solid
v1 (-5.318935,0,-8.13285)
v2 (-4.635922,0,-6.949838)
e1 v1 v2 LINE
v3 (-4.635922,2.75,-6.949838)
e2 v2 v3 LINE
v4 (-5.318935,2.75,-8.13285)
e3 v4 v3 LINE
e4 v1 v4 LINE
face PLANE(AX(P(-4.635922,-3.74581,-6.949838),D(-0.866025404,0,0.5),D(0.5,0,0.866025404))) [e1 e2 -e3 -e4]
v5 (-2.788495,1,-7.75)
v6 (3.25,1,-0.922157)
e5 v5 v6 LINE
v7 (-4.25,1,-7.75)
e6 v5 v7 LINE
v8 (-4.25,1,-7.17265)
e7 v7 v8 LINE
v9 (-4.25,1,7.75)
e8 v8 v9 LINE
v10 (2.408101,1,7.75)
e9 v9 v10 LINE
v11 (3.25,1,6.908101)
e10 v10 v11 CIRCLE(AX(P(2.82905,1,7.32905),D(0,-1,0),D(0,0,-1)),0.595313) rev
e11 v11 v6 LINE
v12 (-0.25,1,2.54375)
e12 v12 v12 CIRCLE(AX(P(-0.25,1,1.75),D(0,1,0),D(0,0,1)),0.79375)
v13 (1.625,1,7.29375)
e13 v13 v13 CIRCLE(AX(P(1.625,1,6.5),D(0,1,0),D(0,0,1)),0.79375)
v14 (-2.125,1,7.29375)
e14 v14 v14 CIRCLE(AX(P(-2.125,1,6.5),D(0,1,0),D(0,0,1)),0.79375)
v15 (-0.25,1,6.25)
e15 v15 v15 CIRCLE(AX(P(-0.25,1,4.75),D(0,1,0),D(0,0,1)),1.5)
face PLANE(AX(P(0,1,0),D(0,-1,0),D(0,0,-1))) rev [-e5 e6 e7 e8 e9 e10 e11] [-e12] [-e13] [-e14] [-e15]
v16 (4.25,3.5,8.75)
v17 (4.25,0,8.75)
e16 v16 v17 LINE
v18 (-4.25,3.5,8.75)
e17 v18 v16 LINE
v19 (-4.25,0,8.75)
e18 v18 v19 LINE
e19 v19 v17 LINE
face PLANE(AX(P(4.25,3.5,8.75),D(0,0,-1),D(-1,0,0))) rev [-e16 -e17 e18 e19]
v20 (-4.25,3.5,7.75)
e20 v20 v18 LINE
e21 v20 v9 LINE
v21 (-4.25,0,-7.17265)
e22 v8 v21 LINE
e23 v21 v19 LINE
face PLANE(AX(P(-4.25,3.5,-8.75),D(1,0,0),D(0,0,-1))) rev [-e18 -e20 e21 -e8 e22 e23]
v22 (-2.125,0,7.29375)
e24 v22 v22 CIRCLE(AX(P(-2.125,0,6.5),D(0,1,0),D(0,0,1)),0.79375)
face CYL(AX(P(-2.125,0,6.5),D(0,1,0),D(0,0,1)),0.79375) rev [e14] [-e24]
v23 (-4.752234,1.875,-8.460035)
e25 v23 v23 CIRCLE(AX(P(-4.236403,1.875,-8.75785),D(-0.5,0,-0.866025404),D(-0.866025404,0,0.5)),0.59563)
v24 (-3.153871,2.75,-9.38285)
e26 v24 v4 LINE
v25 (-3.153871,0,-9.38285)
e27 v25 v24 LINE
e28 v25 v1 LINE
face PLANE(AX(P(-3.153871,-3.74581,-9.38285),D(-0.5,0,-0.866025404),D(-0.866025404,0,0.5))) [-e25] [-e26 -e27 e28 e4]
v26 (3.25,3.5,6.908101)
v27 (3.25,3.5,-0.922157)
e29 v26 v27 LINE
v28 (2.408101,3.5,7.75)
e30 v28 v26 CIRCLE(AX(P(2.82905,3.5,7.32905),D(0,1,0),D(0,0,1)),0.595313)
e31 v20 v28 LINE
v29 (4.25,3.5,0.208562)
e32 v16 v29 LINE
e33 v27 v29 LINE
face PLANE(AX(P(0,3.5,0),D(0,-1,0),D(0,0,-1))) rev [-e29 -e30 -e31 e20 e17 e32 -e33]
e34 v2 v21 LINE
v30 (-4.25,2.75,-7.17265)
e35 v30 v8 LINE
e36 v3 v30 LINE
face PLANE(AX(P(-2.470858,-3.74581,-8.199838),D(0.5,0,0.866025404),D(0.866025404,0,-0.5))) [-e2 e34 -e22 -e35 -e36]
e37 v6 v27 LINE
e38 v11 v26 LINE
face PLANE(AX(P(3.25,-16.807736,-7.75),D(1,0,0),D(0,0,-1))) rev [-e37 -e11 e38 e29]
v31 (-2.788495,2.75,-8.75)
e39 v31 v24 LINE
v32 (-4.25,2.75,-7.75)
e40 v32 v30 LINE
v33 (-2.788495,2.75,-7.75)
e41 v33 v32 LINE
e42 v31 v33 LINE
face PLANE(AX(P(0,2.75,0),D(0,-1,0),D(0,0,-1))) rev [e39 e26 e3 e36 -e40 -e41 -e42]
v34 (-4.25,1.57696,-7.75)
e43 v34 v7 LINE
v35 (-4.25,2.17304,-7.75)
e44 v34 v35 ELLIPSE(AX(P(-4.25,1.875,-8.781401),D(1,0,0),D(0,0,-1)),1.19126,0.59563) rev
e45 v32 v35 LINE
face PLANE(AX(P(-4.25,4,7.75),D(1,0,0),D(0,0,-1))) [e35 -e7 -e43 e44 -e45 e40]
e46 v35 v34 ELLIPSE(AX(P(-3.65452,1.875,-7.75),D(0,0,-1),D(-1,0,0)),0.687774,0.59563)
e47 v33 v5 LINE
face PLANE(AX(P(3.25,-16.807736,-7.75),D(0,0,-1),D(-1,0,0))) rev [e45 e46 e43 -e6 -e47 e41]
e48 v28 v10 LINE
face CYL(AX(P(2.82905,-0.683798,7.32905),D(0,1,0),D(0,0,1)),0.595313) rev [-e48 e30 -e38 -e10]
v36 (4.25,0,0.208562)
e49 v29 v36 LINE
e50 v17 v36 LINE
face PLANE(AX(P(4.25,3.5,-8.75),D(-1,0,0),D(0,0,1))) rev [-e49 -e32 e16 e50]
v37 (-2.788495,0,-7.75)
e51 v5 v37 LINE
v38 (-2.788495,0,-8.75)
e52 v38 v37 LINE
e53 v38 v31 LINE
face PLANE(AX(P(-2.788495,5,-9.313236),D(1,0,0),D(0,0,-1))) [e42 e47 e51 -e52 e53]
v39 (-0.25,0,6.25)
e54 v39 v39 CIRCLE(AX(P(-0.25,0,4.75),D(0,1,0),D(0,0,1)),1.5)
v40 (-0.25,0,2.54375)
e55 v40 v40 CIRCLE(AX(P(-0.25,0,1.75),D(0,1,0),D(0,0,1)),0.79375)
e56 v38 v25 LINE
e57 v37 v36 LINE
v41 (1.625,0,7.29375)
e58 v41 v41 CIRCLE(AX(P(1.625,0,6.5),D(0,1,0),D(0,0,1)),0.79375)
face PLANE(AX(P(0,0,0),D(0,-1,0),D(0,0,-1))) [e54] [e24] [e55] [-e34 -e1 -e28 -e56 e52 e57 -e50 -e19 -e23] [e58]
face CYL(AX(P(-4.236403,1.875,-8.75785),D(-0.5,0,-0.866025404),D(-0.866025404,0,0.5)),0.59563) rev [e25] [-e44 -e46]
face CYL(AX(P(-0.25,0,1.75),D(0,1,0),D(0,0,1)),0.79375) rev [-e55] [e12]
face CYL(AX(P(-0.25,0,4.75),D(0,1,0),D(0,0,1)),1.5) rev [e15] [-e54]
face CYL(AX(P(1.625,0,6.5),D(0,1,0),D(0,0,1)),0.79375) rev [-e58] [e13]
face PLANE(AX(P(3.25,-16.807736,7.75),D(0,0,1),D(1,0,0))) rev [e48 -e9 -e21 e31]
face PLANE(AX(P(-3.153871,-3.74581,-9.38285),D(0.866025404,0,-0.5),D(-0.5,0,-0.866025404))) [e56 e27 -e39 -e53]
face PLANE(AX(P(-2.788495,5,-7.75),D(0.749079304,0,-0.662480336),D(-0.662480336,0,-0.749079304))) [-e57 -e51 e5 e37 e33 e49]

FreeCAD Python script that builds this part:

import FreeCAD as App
import Part
import Sketcher
Q = App.Units.Quantity

doc = App.newDocument("Part")
body = doc.addObject("PartDesign::Body", "Body")

# Sketch on XZ plane
sketch1 = body.newObject("Sketcher::SketchObject", "Sketch")
sketch1.AttachmentSupport = (doc.getObject("XZ_Plane"), [""])
sketch1.MapMode = "FlatFace"
sketch1.addGeometry([
    Part.LineSegment(App.Vector(-4, -9, 0), App.Vector(-4, 9, 0)),
    Part.LineSegment(App.Vector(-4, 9, 0), App.Vector(4, 9, 0)),
    Part.LineSegment(App.Vector(4, 9, 0), App.Vector(4, -9, 0)),
    Part.LineSegment(App.Vector(4, -9, 0), App.Vector(-4, -9, 0)),
], False)
sketch1.addConstraint([
    Sketcher.Constraint("Coincident", 0, 2, 1, 1),
    Sketcher.Constraint("Coincident", 1, 2, 2, 1),
    Sketcher.Constraint("Coincident", 2, 2, 3, 1),
    Sketcher.Constraint("Coincident", 3, 2, 0, 1),
    Sketcher.Constraint("Vertical", 0),
    Sketcher.Constraint("Horizontal", 1),
    Sketcher.Constraint("Vertical", 2),
    Sketcher.Constraint("Horizontal", 3),
    Sketcher.Constraint("Symmetric", 0, 2, 2, 2, -1, 1),
    Sketcher.Constraint("DistanceX", 1, 1, 1, 2, 8.5),
    Sketcher.Constraint("DistanceY", 0, 1, 0, 2, 17.5),
])
pad1 = body.newObject("PartDesign::Pad", "Pad")
pad1.Profile = sketch1
pad1.Length = 3.5
pad1.Reversed = True

# Sketch on XZ plane
sketch2 = body.newObject("Sketcher::SketchObject", "Sketch001")
sketch2.AttachmentSupport = (doc.getObject("XZ_Plane"), [""])
sketch2.MapMode = "FlatFace"
sketch2.AttachmentOffset = App.Placement(App.Vector(0, 0, -3.5), App.Rotation())
sketch2.addGeometry([
    Part.LineSegment(App.Vector(-3, -8, 0), App.Vector(-3, 8, 0)),
    Part.LineSegment(App.Vector(-3, 8, 0), App.Vector(3, 8, 0)),
    Part.LineSegment(App.Vector(3, 8, 0), App.Vector(3, -8, 0)),
    Part.LineSegment(App.Vector(3, -8, 0), App.Vector(-3, -8, 0)),
], False)
sketch2.addConstraint([
    Sketcher.Constraint("Coincident", 0, 2, 1, 1),
    Sketcher.Constraint("Coincident", 1, 2, 2, 1),
    Sketcher.Constraint("Coincident", 2, 2, 3, 1),
    Sketcher.Constraint("Coincident", 3, 2, 0, 1),
    Sketcher.Constraint("Vertical", 0),
    Sketcher.Constraint("Horizontal", 1),
    Sketcher.Constraint("Vertical", 2),
    Sketcher.Constraint("Horizontal", 3),
    Sketcher.Constraint("Symmetric", 0, 2, 2, 2, -1, 1),
    Sketcher.Constraint("DistanceX", 1, 1, 1, 2, 6.5),
    Sketcher.Constraint("DistanceY", 0, 1, 0, 2, 15.5),
])
pocket1 = body.newObject("PartDesign::Pocket", "Pocket")
pocket1.Profile = sketch2
pocket1.Length = 2.5
pocket1.Reversed = True

# Sketch on XZ plane
sketch3 = body.newObject("Sketcher::SketchObject", "Sketch002")
sketch3.AttachmentSupport = (doc.getObject("XZ_Plane"), [""])
sketch3.MapMode = "FlatFace"
sketch3.AttachmentOffset = App.Placement(App.Vector(0, 0, -1), App.Rotation())
sketch3.addGeometry(Part.Circle(App.Vector(-0.2, 4.8, 0), App.Vector(0, 0, 1), 1.5), False)
sketch3.addConstraint([
    Sketcher.Constraint("Diameter", 0, 3.0),
    Sketcher.Constraint("DistanceX", 0, 3, -1, 1, 0.25),
    Sketcher.Constraint("DistanceY", -1, 1, 0, 3, 4.75),
])
pocket2 = body.newObject("PartDesign::Pocket", "Pocket001")
pocket2.Profile = sketch3
pocket2.Type = "ThroughAll"
pocket2.Reversed = True

# Sketch on XZ plane
sketch4 = body.newObject("Sketcher::SketchObject", "Sketch003")
sketch4.AttachmentSupport = (doc.getObject("XZ_Plane"), [""])
sketch4.MapMode = "FlatFace"
sketch4.AttachmentOffset = App.Placement(App.Vector(0, 0, -3.5), App.Rotation())
sketch4.addGeometry(Part.Circle(App.Vector(2.8, 7.3, 0), App.Vector(0, 0, 1), 0.6), False)
sketch4.addConstraint([
    Sketcher.Constraint("Diameter", 0, 1.190625),
    Sketcher.Constraint("DistanceX", -1, 1, 0, 3, 2.82905),
    Sketcher.Constraint("DistanceY", -1, 1, 0, 3, 7.32905),
])
pocket3 = body.newObject("PartDesign::Pocket", "Pocket002")
pocket3.Profile = sketch4
pocket3.Length = 2.5
pocket3.Reversed = True

# Sketch on XZ plane
sketch5 = body.newObject("Sketcher::SketchObject", "Sketch004")
sketch5.AttachmentSupport = (doc.getObject("XZ_Plane"), [""])
sketch5.MapMode = "FlatFace"
sketch5.AttachmentOffset = App.Placement(App.Vector(0, 0, -1), App.Rotation())
sketch5.addGeometry([
    Part.Circle(App.Vector(-0.2, 1.8, 0), App.Vector(0, 0, 1), 0.8),
    Part.Circle(App.Vector(-2.1, 6.5, 0), App.Vector(0, 0, 1), 0.8),
    Part.Circle(App.Vector(1.6, 6.5, 0), App.Vector(0, 0, 1), 0.8),
], False)
sketch5.addConstraint([
    Sketcher.Constraint("Equal", 0, 1),
    Sketcher.Constraint("Equal", 1, 2),
    Sketcher.Constraint("Horizontal", 1, 3, 2, 3),
    Sketcher.Constraint("Diameter", 0, 1.5875),
    Sketcher.Constraint("DistanceY", -1, 1, 1, 3, 6.5),
    Sketcher.Constraint("DistanceX", 0, 3, -1, 1, 0.25),
    Sketcher.Constraint("DistanceY", -1, 1, 0, 3, 1.75),
    Sketcher.Constraint("DistanceX", 1, 3, 2, 3, 3.75),
    Sketcher.Constraint("DistanceX", 1, 3, -1, 1, 2.125),
])
pocket4 = body.newObject("PartDesign::Pocket", "Pocket003")
pocket4.Profile = sketch5
pocket4.Type = "ThroughAll"
pocket4.Reversed = True

# Sketch on XZ plane
sketch6 = body.newObject("Sketcher::SketchObject", "Sketch005")
sketch6.AttachmentSupport = (doc.getObject("XZ_Plane"), [""])
sketch6.MapMode = "FlatFace"
sketch6.AttachmentOffset = App.Placement(App.Vector(0, 0, -3.5), App.Rotation())
sketch6.addGeometry([
    Part.LineSegment(App.Vector(-3.2, -9.4, 0), App.Vector(-5.3, -8.1, 0)),  # 0
    Part.LineSegment(App.Vector(-5.3, -8.1, 0), App.Vector(-4.6, -6.9, 0)),  # 1
    Part.LineSegment(App.Vector(-4.6, -6.9, 0), App.Vector(-4, -7.3, 0)),  # 2
    Part.LineSegment(App.Vector(-4, -7.3, 0), App.Vector(-3.1, -7.8, 0)),  # 3
    Part.LineSegment(App.Vector(-3.1, -7.8, 0), App.Vector(-2.5, -8.2, 0)),  # 4
    Part.LineSegment(App.Vector(-2.5, -8.2, 0), App.Vector(-3.2, -9.4, 0)),  # 5
], False)
sketch6.addConstraint([
    Sketcher.Constraint("Coincident", 0, 2, 1, 1),
    Sketcher.Constraint("Coincident", 1, 2, 2, 1),
    Sketcher.Constraint("Coincident", 2, 2, 3, 1),
    Sketcher.Constraint("Coincident", 3, 2, 4, 1),
    Sketcher.Constraint("Coincident", 4, 2, 5, 1),
    Sketcher.Constraint("Coincident", 5, 2, 0, 1),
    Sketcher.Constraint("Perpendicular", 0, 1),
    Sketcher.Constraint("Perpendicular", 1, 2),
    Sketcher.Constraint("Parallel", 2, 3),
    Sketcher.Constraint("Parallel", 3, 4),
    Sketcher.Constraint("Perpendicular", 4, 5),
    Sketcher.Constraint("Equal", 2, 4),
    Sketcher.Constraint("Angle", 0, Q("150 deg")),
    Sketcher.Constraint("Distance", 0, 2.5),
    Sketcher.Constraint("Distance", 2, 0.70898),
    Sketcher.Constraint("DistanceY", 0, 2, -1, 1, 8.13285),
    Sketcher.Constraint("DistanceX", 1, 2, -1, 1, 4.635922),
    Sketcher.Constraint("DistanceX", 5, 2, -1, 1, 3.153871),
])
pad2 = body.newObject("PartDesign::Pad", "Pad001")
pad2.Profile = sketch6
pad2.Length = 3.5

# Sketch on XZ plane
sketch7 = body.newObject("Sketcher::SketchObject", "Sketch006")
sketch7.AttachmentSupport = (doc.getObject("XZ_Plane"), [""])
sketch7.MapMode = "FlatFace"
sketch7.AttachmentOffset = App.Placement(App.Vector(0, 0, -3.5), App.Rotation())
sketch7.addGeometry([
    Part.LineSegment(App.Vector(-6, -10, 0), App.Vector(-6, -5, 0)),
    Part.LineSegment(App.Vector(-6, -5, 0), App.Vector(0, -5, 0)),
    Part.LineSegment(App.Vector(0, -5, 0), App.Vector(0, -10, 0)),
    Part.LineSegment(App.Vector(0, -10, 0), App.Vector(-6, -10, 0)),
], False)
sketch7.addConstraint([
    Sketcher.Constraint("Coincident", 0, 2, 1, 1),
    Sketcher.Constraint("Coincident", 1, 2, 2, 1),
    Sketcher.Constraint("Coincident", 2, 2, 3, 1),
    Sketcher.Constraint("Coincident", 3, 2, 0, 1),
    Sketcher.Constraint("Vertical", 0),
    Sketcher.Constraint("Horizontal", 1),
    Sketcher.Constraint("Vertical", 2),
    Sketcher.Constraint("Horizontal", 3),
    Sketcher.Constraint("DistanceX", 1, 1, 1, 2, 5.965259),
    Sketcher.Constraint("DistanceY", 0, 1, 0, 2, 5.13296),
    Sketcher.Constraint("DistanceX", 0, 2, -1, 1, 6.232629),
    Sketcher.Constraint("DistanceY", 0, 2, -1, 1, 5.18352),
])
pocket5 = body.newObject("PartDesign::Pocket", "Pocket004")
pocket5.Profile = sketch7
pocket5.Length = 0.75
pocket5.Reversed = True

# Sketch on an angled plane
sketch8 = body.newObject("Sketcher::SketchObject", "Sketch007")
sketch8.Placement = App.Placement(App.Vector(-4.851361, 0, -8.402804), App.Rotation(App.Vector(-0.866025404, 0, 0.5), App.Vector(0, 1, 0), App.Vector(-0.5, 0, -0.866025404), "ZXY"))
sketch8.addGeometry(Part.Circle(App.Vector(-0.7, 1.9, 0), App.Vector(0, 0, 1), 0.6), False)
sketch8.addConstraint([
    Sketcher.Constraint("Diameter", 0, 1.19126),
    Sketcher.Constraint("DistanceY", -1, 1, 0, 3, 1.875),
    Sketcher.Constraint("DistanceX", 0, 3, -1, 1, 0.710093),
])
doc.recompute()
hole = body.newObject("PartDesign::Hole", "Hole")
hole.Profile = sketch8
hole.ThreadType = "None"
hole.Diameter = 1.19126
hole.DepthType = "Dimension"
hole.Depth = 7.11
hole.DrillPoint = "Angled"
hole.DrillPointAngle = 118

# Sketch on XZ plane
sketch9 = body.newObject("Sketcher::SketchObject", "Sketch008")
sketch9.AttachmentSupport = (doc.getObject("XZ_Plane"), [""])
sketch9.MapMode = "FlatFace"
sketch9.addGeometry([
    Part.LineSegment(App.Vector(-2.8, -9.3, 0), App.Vector(-2.8, -7.8, 0)),
    Part.LineSegment(App.Vector(-2.8, -7.8, 0), App.Vector(4.2, 0.2, 0)),
    Part.LineSegment(App.Vector(4.2, 0.2, 0), App.Vector(4.2, -9.3, 0)),
    Part.LineSegment(App.Vector(4.2, -9.3, 0), App.Vector(-2.8, -9.3, 0)),
], False)
sketch9.addConstraint([
    Sketcher.Constraint("Coincident", 0, 2, 1, 1),
    Sketcher.Constraint("Coincident", 1, 2, 2, 1),
    Sketcher.Constraint("Coincident", 2, 2, 3, 1),
    Sketcher.Constraint("Coincident", 3, 2, 0, 1),
    Sketcher.Constraint("Vertical", 0),
    Sketcher.Constraint("Vertical", 2),
    Sketcher.Constraint("Horizontal", 3),
    Sketcher.Constraint("DistanceY", 0, 2, -1, 1, 7.75),
    Sketcher.Constraint("DistanceX", -1, 1, 1, 2, 4.25),
    Sketcher.Constraint("Distance", 1, 10.624459),
    Sketcher.Constraint("DistanceX", 3, 2, 3, 1, 7.038495),
    Sketcher.Constraint("DistanceY", 0, 1, 0, 2, 1.563236),
])
pocket6 = body.newObject("PartDesign::Pocket", "Pocket005")
pocket6.Profile = sketch9
pocket6.Length = 5

# Sketch on XZ plane
sketch10 = body.newObject("Sketcher::SketchObject", "Sketch009")
sketch10.AttachmentSupport = (doc.getObject("XZ_Plane"), [""])
sketch10.MapMode = "FlatFace"
sketch10.AttachmentOffset = App.Placement(App.Vector(0, 0, -1), App.Rotation())
sketch10.addGeometry([
    Part.LineSegment(App.Vector(-4.2, -7.8, 0), App.Vector(-4.2, 7.8, 0)),
    Part.LineSegment(App.Vector(-4.2, 7.8, 0), App.Vector(-3.2, 7.8, 0)),
    Part.LineSegment(App.Vector(-3.2, 7.8, 0), App.Vector(-3.2, -7.8, 0)),
    Part.LineSegment(App.Vector(-3.2, -7.8, 0), App.Vector(-4.2, -7.8, 0)),
], False)
sketch10.addConstraint([
    Sketcher.Constraint("Coincident", 0, 2, 1, 1),
    Sketcher.Constraint("Coincident", 1, 2, 2, 1),
    Sketcher.Constraint("Coincident", 2, 2, 3, 1),
    Sketcher.Constraint("Coincident", 3, 2, 0, 1),
    Sketcher.Constraint("Vertical", 0),
    Sketcher.Constraint("Horizontal", 1),
    Sketcher.Constraint("Vertical", 2),
    Sketcher.Constraint("Horizontal", 3),
    Sketcher.Constraint("DistanceX", 1, 1, 1, 2, 1.0),
    Sketcher.Constraint("DistanceY", 0, 1, 0, 2, 15.5),
    Sketcher.Constraint("DistanceX", 0, 2, -1, 1, 4.25),
    Sketcher.Constraint("DistanceY", -1, 1, 0, 2, 7.75),
])
pocket7 = body.newObject("PartDesign::Pocket", "Pocket006")
pocket7.Profile = sketch10
pocket7.Length = 3

doc.recompute()
